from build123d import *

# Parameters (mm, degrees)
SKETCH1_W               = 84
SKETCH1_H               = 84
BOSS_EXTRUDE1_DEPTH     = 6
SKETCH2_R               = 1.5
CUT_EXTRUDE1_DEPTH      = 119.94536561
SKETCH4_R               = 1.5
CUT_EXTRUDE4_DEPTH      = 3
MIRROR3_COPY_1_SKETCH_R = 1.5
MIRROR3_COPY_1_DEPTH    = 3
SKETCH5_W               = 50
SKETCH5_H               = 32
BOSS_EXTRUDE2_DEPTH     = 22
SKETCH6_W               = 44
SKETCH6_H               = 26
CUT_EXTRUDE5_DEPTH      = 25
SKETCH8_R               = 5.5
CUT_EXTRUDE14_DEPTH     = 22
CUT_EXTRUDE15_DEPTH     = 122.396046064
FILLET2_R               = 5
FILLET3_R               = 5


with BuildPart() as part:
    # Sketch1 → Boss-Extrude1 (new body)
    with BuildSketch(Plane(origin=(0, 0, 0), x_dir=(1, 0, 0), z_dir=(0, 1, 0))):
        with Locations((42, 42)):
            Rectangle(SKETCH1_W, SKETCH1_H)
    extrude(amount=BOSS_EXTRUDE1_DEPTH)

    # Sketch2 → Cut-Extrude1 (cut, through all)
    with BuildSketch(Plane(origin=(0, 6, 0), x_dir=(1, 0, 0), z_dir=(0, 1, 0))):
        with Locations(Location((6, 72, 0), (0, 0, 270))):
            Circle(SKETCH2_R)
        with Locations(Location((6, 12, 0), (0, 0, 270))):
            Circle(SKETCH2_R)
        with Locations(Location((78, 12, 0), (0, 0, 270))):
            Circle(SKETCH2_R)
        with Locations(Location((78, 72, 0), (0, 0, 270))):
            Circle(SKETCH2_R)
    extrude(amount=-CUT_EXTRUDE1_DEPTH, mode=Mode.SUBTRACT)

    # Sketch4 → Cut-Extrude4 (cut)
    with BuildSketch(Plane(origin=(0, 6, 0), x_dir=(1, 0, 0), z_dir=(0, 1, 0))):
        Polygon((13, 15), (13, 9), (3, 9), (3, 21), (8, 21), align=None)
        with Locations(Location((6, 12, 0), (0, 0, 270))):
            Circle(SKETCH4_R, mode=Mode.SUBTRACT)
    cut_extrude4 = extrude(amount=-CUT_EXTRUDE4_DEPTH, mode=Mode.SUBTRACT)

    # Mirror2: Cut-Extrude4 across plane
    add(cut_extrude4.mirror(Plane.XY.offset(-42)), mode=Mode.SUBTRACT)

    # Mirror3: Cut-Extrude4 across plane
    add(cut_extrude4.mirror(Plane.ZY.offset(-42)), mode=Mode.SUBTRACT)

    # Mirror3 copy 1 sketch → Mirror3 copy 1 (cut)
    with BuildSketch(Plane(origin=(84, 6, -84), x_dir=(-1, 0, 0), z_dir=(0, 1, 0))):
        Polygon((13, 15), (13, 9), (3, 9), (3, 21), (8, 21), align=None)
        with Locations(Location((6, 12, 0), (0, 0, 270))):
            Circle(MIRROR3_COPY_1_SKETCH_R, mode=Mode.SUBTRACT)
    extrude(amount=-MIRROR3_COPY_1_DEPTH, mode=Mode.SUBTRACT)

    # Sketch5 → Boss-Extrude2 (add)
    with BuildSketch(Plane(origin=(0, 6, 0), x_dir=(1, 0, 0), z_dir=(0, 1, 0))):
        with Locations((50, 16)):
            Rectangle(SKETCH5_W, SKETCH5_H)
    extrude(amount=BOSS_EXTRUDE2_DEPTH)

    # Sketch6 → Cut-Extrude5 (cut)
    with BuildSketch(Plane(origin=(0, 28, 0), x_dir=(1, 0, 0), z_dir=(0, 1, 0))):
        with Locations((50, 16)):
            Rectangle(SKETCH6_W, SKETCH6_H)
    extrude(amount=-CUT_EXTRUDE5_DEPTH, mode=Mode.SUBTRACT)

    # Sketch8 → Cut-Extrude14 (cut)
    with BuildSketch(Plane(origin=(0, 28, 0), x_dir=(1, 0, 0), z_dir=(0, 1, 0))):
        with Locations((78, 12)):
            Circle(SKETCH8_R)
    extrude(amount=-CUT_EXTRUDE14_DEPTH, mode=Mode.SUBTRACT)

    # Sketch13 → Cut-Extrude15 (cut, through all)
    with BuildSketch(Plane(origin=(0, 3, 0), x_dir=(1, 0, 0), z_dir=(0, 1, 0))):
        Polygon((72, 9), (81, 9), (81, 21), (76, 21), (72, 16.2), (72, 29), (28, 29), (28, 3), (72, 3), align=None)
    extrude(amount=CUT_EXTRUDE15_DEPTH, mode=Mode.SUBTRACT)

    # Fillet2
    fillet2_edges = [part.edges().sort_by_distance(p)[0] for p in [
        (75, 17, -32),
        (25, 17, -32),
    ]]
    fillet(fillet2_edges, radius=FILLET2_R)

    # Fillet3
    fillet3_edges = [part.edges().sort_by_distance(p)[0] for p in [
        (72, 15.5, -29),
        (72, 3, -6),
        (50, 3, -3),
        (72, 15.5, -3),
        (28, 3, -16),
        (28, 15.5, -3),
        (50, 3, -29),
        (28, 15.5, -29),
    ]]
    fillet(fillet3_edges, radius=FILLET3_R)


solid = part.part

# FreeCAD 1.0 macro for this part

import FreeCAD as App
import Part
import Sketcher

V = App.Vector
Q = App.Units.Quantity


def edges_at(feature, points):
    """Names of the edges that pass closest to the given points."""
    edges = feature.Shape.Edges
    near = lambda p: min(range(len(edges)), key=lambda i: edges[i].distToShape(Part.Vertex(*p))[0])
    return sorted({f"Edge{near(p) + 1}" for p in points})


def add_polygon(sketch, points):
    """Adds a closed chain of lines whose ends are joined by coincident constraints."""
    first, n = sketch.GeometryCount, len(points)
    for a, b in zip(points, points[1:] + points[:1]):
        sketch.addGeometry(Part.LineSegment(App.Vector(*a, 0), App.Vector(*b, 0)), False)
    for i in range(n):
        sketch.addConstraint(Sketcher.Constraint("Coincident", first + i, 2, first + (i + 1) % n, 1))

doc = App.newDocument("Part")
body = doc.addObject("PartDesign::Body", "Body")

# Sketch on XZ plane
sketch1 = body.newObject("Sketcher::SketchObject", "Sketch")
sketch1.AttachmentSupport = (doc.getObject("XZ_Plane"), [""])
sketch1.MapMode = "FlatFace"
add_polygon(sketch1, [(0, -84), (0, 0), (84, 0), (84, -84)])  # lines 0-3
sketch1.addConstraint([
    Sketcher.Constraint("Vertical", 0),
    Sketcher.Constraint("Horizontal", 1),
    Sketcher.Constraint("Vertical", 2),
    Sketcher.Constraint("Horizontal", 3),
    Sketcher.Constraint("Coincident", 0, 2, -1, 1),
    Sketcher.Constraint("Equal", 3, 0),
    Sketcher.Constraint("DistanceX", 1, 1, 1, 2, Q("84 mm")),
])
pad1 = body.newObject("PartDesign::Pad", "Pad")
pad1.Profile = sketch1
pad1.Length = 6
pad1.Reversed = True

# Sketch on XZ plane
sketch2 = body.newObject("Sketcher::SketchObject", "Sketch001")
sketch2.AttachmentSupport = (doc.getObject("XZ_Plane"), [""])
sketch2.MapMode = "FlatFace"
sketch2.AttachmentOffset = App.Placement(V(0, 0, -6), App.Rotation())
sketch2.addGeometry([
    Part.Circle(V(6, -72, 0), V(0, 0, 1), 1.5),
    Part.Circle(V(6, -12, 0), V(0, 0, 1), 1.5),
    Part.Circle(V(78, -12, 0), V(0, 0, 1), 1.5),
    Part.Circle(V(78, -72, 0), V(0, 0, 1), 1.5),
], False)
sketch2.addConstraint([
    Sketcher.Constraint("Equal", 0, 1),
    Sketcher.Constraint("Equal", 1, 2),
    Sketcher.Constraint("Equal", 2, 3),
    Sketcher.Constraint("Horizontal", 1, 3, 2, 3),
    Sketcher.Constraint("Horizontal", 0, 3, 3, 3),
    Sketcher.Constraint("Vertical", 0, 3, 1, 3),
    Sketcher.Constraint("Vertical", 2, 3, 3, 3),
    Sketcher.Constraint("Diameter", 0, Q("3 mm")),
    Sketcher.Constraint("DistanceX", -1, 1, 0, 3, Q("6 mm")),
    Sketcher.Constraint("DistanceY", 0, 3, -1, 1, Q("72 mm")),
    Sketcher.Constraint("DistanceY", 1, 3, -1, 1, Q("12 mm")),
    Sketcher.Constraint("DistanceX", -1, 1, 2, 3, Q("78 mm")),
])
pocket1 = body.newObject("PartDesign::Pocket", "Pocket")
pocket1.Profile = sketch2
pocket1.Type = "ThroughAll"
pocket1.Reversed = True

# Sketch on XZ plane
sketch3 = body.newObject("Sketcher::SketchObject", "Sketch002")
sketch3.AttachmentSupport = (doc.getObject("XZ_Plane"), [""])
sketch3.MapMode = "FlatFace"
sketch3.AttachmentOffset = App.Placement(V(0, 0, -6), App.Rotation())
add_polygon(sketch3, [(13, -9), (13, -15), (8, -21), (3, -21), (3, -9)])  # lines 0-4
sketch3.addGeometry(Part.Circle(V(6, -12, 0), V(0, 0, 1), 1.5), False)  # 5
sketch3.addConstraint([
    Sketcher.Constraint("Vertical", 0),
    Sketcher.Constraint("Horizontal", 2),
    Sketcher.Constraint("Vertical", 3),
    Sketcher.Constraint("Horizontal", 4),
    Sketcher.Constraint("Diameter", 5, Q("3 mm")),
    Sketcher.Constraint("DistanceX", 2, 2, 2, 1, Q("5 mm")),
    Sketcher.Constraint("DistanceX", 4, 1, 4, 2, Q("10 mm")),
    Sketcher.Constraint("DistanceY", 0, 2, 0, 1, Q("6 mm")),
    Sketcher.Constraint("DistanceY", 3, 1, 3, 2, Q("12 mm")),
    Sketcher.Constraint("DistanceX", -1, 1, 5, 3, Q("6 mm")),
    Sketcher.Constraint("DistanceY", 5, 3, -1, 1, Q("12 mm")),
    Sketcher.Constraint("DistanceX", -1, 1, 0, 2, Q("13 mm")),
    Sketcher.Constraint("DistanceY", 0, 2, -1, 1, Q("15 mm")),
])
pocket2 = body.newObject("PartDesign::Pocket", "Pocket001")
pocket2.Profile = sketch3
pocket2.Length = 3
pocket2.Reversed = True
doc.recompute()

datumplane = body.newObject("PartDesign::Plane", "DatumPlane")
datumplane.AttachmentSupport = (doc.getObject("XY_Plane"), [""])
datumplane.MapMode = "FlatFace"
datumplane.AttachmentOffset = App.Placement(V(0, 0, -42), App.Rotation())
mirrored = body.newObject("PartDesign::Mirrored", "Mirrored")
mirrored.Originals = [pocket2]
mirrored.MirrorPlane = (datumplane, [""])
body.Tip = mirrored
doc.recompute()

datumplane2 = body.newObject("PartDesign::Plane", "DatumPlane001")
datumplane2.AttachmentSupport = (doc.getObject("YZ_Plane"), [""])
datumplane2.MapMode = "FlatFace"
datumplane2.AttachmentOffset = App.Placement(V(0, 0, 42), App.Rotation())
mirrored2 = body.newObject("PartDesign::Mirrored", "Mirrored001")
mirrored2.Originals = [pocket2]
mirrored2.MirrorPlane = (datumplane2, [""])
body.Tip = mirrored2

# Sketch on XZ plane
sketch4 = body.newObject("Sketcher::SketchObject", "Sketch003")
sketch4.AttachmentSupport = (doc.getObject("XZ_Plane"), [""])
sketch4.MapMode = "FlatFace"
sketch4.AttachmentOffset = App.Placement(V(0, 0, -6), App.Rotation())
add_polygon(sketch4, [(71, -75), (71, -69), (76, -63), (81, -63), (81, -75)])  # lines 0-4
sketch4.addGeometry(Part.Circle(V(78, -72, 0), V(0, 0, 1), 1.5), False)  # 5
sketch4.addConstraint([
    Sketcher.Constraint("Vertical", 0),
    Sketcher.Constraint("Horizontal", 2),
    Sketcher.Constraint("Vertical", 3),
    Sketcher.Constraint("Horizontal", 4),
    Sketcher.Constraint("Diameter", 5, Q("3 mm")),
    Sketcher.Constraint("DistanceX", 2, 1, 2, 2, Q("5 mm")),
    Sketcher.Constraint("DistanceX", 4, 2, 4, 1, Q("10 mm")),
    Sketcher.Constraint("DistanceY", 0, 1, 0, 2, Q("6 mm")),
    Sketcher.Constraint("DistanceY", 3, 2, 3, 1, Q("12 mm")),
    Sketcher.Constraint("DistanceX", -1, 1, 5, 3, Q("78 mm")),
    Sketcher.Constraint("DistanceY", 5, 3, -1, 1, Q("72 mm")),
    Sketcher.Constraint("DistanceX", -1, 1, 0, 2, Q("71 mm")),
    Sketcher.Constraint("DistanceY", 0, 2, -1, 1, Q("69 mm")),
])
pocket3 = body.newObject("PartDesign::Pocket", "Pocket002")
pocket3.Profile = sketch4
pocket3.Length = 3
pocket3.Reversed = True

# Sketch on XZ plane
sketch5 = body.newObject("Sketcher::SketchObject", "Sketch004")
sketch5.AttachmentSupport = (doc.getObject("XZ_Plane"), [""])
sketch5.MapMode = "FlatFace"
sketch5.AttachmentOffset = App.Placement(V(0, 0, -6), App.Rotation())
add_polygon(sketch5, [(25, -32), (25, 0), (75, 0), (75, -32)])  # lines 0-3
sketch5.addConstraint([
    Sketcher.Constraint("Vertical", 0),
    Sketcher.Constraint("Horizontal", 1),
    Sketcher.Constraint("Vertical", 2),
    Sketcher.Constraint("Horizontal", 3),
    Sketcher.Constraint("PointOnObject", 0, 2, -1),
    Sketcher.Constraint("DistanceX", 1, 1, 1, 2, Q("50 mm")),
    Sketcher.Constraint("DistanceY", 0, 1, 0, 2, Q("32 mm")),
    Sketcher.Constraint("DistanceX", -1, 1, 0, 2, Q("25 mm")),
])
pad2 = body.newObject("PartDesign::Pad", "Pad001")
pad2.Profile = sketch5
pad2.Length = 22
pad2.Reversed = True

# Sketch on XZ plane
sketch6 = body.newObject("Sketcher::SketchObject", "Sketch005")
sketch6.AttachmentSupport = (doc.getObject("XZ_Plane"), [""])
sketch6.MapMode = "FlatFace"
sketch6.AttachmentOffset = App.Placement(V(0, 0, -28), App.Rotation())
add_polygon(sketch6, [(28, -29), (28, -3), (72, -3), (72, -29)])  # lines 0-3
sketch6.addConstraint([
    Sketcher.Constraint("Vertical", 0),
    Sketcher.Constraint("Horizontal", 1),
    Sketcher.Constraint("Vertical", 2),
    Sketcher.Constraint("Horizontal", 3),
    Sketcher.Constraint("DistanceX", 1, 1, 1, 2, Q("44 mm")),
    Sketcher.Constraint("DistanceY", 0, 1, 0, 2, Q("26 mm")),
    Sketcher.Constraint("DistanceX", -1, 1, 0, 2, Q("28 mm")),
    Sketcher.Constraint("DistanceY", 0, 2, -1, 1, Q("3 mm")),
])
pocket4 = body.newObject("PartDesign::Pocket", "Pocket003")
pocket4.Profile = sketch6
pocket4.Length = 25
pocket4.Reversed = True

# Sketch on XZ plane
sketch7 = body.newObject("Sketcher::SketchObject", "Sketch006")
sketch7.AttachmentSupport = (doc.getObject("XZ_Plane"), [""])
sketch7.MapMode = "FlatFace"
sketch7.AttachmentOffset = App.Placement(V(0, 0, -28), App.Rotation())
sketch7.addGeometry(Part.Circle(V(78, -12, 0), V(0, 0, 1), 5.5), False)
sketch7.addConstraint([
    Sketcher.Constraint("Diameter", 0, Q("11 mm")),
    Sketcher.Constraint("DistanceX", -1, 1, 0, 3, Q("78 mm")),
    Sketcher.Constraint("DistanceY", 0, 3, -1, 1, Q("12 mm")),
])
pocket5 = body.newObject("PartDesign::Pocket", "Pocket004")
pocket5.Profile = sketch7
pocket5.Length = 22
pocket5.Reversed = True

# Sketch on XZ plane
sketch8 = body.newObject("Sketcher::SketchObject", "Sketch007")
sketch8.AttachmentSupport = (doc.getObject("XZ_Plane"), [""])
sketch8.MapMode = "FlatFace"
sketch8.AttachmentOffset = App.Placement(V(0, 0, -3), App.Rotation())
add_polygon(sketch8, [(72, -9), (81, -9), (81, -21), (76, -21), (72, -16.2), (72, -29), (28, -29), (28, -3), (72, -3)])  # lines 0-8
sketch8.addConstraint([
    Sketcher.Constraint("Horizontal", 0),
    Sketcher.Constraint("Vertical", 1),
    Sketcher.Constraint("Horizontal", 2),
    Sketcher.Constraint("Vertical", 4),
    Sketcher.Constraint("Horizontal", 5),
    Sketcher.Constraint("Vertical", 6),
    Sketcher.Constraint("Horizontal", 7),
    Sketcher.Constraint("Vertical", 8),
    Sketcher.Constraint("Vertical", 4, 2, 7, 2),
    Sketcher.Constraint("DistanceX", 0, 1, 0, 2, Q("9 mm")),
    Sketcher.Constraint("DistanceX", 2, 2, 2, 1, Q("5 mm")),
    Sketcher.Constraint("DistanceX", 5, 2, 5, 1, Q("44 mm")),
    Sketcher.Constraint("DistanceY", 1, 2, 1, 1, Q("12 mm")),
    Sketcher.Constraint("DistanceY", 6, 1, 6, 2, Q("26 mm")),
    Sketcher.Constraint("DistanceY", 8, 2, 8, 1, Q("6 mm")),
    Sketcher.Constraint("DistanceY", 4, 2, 4, 1, Q("12.8 mm")),
    Sketcher.Constraint("DistanceX", -1, 1, 0, 2, Q("81 mm")),
    Sketcher.Constraint("DistanceY", 0, 2, -1, 1, Q("9 mm")),
])
pocket6 = body.newObject("PartDesign::Pocket", "Pocket005")
pocket6.Profile = sketch8
pocket6.Type = "ThroughAll"
doc.recompute()

fillet = body.newObject("PartDesign::Fillet", "Fillet")
fillet.Base = (pocket6, edges_at(pocket6, [(75, 17, -32), (25, 17, -32)]))
fillet.Radius = 5
doc.recompute()

fillet2 = body.newObject("PartDesign::Fillet", "Fillet001")
fillet2.Base = (fillet, edges_at(fillet, [
    (72, 15.5, -29),
    (72, 3, -6),
    (50, 3, -3),
    (72, 15.5, -3),
    (28, 3, -16),
    (28, 15.5, -3),
    (50, 3, -29),
    (28, 15.5, -29),
]))
fillet2.Radius = 5

doc.recompute()
